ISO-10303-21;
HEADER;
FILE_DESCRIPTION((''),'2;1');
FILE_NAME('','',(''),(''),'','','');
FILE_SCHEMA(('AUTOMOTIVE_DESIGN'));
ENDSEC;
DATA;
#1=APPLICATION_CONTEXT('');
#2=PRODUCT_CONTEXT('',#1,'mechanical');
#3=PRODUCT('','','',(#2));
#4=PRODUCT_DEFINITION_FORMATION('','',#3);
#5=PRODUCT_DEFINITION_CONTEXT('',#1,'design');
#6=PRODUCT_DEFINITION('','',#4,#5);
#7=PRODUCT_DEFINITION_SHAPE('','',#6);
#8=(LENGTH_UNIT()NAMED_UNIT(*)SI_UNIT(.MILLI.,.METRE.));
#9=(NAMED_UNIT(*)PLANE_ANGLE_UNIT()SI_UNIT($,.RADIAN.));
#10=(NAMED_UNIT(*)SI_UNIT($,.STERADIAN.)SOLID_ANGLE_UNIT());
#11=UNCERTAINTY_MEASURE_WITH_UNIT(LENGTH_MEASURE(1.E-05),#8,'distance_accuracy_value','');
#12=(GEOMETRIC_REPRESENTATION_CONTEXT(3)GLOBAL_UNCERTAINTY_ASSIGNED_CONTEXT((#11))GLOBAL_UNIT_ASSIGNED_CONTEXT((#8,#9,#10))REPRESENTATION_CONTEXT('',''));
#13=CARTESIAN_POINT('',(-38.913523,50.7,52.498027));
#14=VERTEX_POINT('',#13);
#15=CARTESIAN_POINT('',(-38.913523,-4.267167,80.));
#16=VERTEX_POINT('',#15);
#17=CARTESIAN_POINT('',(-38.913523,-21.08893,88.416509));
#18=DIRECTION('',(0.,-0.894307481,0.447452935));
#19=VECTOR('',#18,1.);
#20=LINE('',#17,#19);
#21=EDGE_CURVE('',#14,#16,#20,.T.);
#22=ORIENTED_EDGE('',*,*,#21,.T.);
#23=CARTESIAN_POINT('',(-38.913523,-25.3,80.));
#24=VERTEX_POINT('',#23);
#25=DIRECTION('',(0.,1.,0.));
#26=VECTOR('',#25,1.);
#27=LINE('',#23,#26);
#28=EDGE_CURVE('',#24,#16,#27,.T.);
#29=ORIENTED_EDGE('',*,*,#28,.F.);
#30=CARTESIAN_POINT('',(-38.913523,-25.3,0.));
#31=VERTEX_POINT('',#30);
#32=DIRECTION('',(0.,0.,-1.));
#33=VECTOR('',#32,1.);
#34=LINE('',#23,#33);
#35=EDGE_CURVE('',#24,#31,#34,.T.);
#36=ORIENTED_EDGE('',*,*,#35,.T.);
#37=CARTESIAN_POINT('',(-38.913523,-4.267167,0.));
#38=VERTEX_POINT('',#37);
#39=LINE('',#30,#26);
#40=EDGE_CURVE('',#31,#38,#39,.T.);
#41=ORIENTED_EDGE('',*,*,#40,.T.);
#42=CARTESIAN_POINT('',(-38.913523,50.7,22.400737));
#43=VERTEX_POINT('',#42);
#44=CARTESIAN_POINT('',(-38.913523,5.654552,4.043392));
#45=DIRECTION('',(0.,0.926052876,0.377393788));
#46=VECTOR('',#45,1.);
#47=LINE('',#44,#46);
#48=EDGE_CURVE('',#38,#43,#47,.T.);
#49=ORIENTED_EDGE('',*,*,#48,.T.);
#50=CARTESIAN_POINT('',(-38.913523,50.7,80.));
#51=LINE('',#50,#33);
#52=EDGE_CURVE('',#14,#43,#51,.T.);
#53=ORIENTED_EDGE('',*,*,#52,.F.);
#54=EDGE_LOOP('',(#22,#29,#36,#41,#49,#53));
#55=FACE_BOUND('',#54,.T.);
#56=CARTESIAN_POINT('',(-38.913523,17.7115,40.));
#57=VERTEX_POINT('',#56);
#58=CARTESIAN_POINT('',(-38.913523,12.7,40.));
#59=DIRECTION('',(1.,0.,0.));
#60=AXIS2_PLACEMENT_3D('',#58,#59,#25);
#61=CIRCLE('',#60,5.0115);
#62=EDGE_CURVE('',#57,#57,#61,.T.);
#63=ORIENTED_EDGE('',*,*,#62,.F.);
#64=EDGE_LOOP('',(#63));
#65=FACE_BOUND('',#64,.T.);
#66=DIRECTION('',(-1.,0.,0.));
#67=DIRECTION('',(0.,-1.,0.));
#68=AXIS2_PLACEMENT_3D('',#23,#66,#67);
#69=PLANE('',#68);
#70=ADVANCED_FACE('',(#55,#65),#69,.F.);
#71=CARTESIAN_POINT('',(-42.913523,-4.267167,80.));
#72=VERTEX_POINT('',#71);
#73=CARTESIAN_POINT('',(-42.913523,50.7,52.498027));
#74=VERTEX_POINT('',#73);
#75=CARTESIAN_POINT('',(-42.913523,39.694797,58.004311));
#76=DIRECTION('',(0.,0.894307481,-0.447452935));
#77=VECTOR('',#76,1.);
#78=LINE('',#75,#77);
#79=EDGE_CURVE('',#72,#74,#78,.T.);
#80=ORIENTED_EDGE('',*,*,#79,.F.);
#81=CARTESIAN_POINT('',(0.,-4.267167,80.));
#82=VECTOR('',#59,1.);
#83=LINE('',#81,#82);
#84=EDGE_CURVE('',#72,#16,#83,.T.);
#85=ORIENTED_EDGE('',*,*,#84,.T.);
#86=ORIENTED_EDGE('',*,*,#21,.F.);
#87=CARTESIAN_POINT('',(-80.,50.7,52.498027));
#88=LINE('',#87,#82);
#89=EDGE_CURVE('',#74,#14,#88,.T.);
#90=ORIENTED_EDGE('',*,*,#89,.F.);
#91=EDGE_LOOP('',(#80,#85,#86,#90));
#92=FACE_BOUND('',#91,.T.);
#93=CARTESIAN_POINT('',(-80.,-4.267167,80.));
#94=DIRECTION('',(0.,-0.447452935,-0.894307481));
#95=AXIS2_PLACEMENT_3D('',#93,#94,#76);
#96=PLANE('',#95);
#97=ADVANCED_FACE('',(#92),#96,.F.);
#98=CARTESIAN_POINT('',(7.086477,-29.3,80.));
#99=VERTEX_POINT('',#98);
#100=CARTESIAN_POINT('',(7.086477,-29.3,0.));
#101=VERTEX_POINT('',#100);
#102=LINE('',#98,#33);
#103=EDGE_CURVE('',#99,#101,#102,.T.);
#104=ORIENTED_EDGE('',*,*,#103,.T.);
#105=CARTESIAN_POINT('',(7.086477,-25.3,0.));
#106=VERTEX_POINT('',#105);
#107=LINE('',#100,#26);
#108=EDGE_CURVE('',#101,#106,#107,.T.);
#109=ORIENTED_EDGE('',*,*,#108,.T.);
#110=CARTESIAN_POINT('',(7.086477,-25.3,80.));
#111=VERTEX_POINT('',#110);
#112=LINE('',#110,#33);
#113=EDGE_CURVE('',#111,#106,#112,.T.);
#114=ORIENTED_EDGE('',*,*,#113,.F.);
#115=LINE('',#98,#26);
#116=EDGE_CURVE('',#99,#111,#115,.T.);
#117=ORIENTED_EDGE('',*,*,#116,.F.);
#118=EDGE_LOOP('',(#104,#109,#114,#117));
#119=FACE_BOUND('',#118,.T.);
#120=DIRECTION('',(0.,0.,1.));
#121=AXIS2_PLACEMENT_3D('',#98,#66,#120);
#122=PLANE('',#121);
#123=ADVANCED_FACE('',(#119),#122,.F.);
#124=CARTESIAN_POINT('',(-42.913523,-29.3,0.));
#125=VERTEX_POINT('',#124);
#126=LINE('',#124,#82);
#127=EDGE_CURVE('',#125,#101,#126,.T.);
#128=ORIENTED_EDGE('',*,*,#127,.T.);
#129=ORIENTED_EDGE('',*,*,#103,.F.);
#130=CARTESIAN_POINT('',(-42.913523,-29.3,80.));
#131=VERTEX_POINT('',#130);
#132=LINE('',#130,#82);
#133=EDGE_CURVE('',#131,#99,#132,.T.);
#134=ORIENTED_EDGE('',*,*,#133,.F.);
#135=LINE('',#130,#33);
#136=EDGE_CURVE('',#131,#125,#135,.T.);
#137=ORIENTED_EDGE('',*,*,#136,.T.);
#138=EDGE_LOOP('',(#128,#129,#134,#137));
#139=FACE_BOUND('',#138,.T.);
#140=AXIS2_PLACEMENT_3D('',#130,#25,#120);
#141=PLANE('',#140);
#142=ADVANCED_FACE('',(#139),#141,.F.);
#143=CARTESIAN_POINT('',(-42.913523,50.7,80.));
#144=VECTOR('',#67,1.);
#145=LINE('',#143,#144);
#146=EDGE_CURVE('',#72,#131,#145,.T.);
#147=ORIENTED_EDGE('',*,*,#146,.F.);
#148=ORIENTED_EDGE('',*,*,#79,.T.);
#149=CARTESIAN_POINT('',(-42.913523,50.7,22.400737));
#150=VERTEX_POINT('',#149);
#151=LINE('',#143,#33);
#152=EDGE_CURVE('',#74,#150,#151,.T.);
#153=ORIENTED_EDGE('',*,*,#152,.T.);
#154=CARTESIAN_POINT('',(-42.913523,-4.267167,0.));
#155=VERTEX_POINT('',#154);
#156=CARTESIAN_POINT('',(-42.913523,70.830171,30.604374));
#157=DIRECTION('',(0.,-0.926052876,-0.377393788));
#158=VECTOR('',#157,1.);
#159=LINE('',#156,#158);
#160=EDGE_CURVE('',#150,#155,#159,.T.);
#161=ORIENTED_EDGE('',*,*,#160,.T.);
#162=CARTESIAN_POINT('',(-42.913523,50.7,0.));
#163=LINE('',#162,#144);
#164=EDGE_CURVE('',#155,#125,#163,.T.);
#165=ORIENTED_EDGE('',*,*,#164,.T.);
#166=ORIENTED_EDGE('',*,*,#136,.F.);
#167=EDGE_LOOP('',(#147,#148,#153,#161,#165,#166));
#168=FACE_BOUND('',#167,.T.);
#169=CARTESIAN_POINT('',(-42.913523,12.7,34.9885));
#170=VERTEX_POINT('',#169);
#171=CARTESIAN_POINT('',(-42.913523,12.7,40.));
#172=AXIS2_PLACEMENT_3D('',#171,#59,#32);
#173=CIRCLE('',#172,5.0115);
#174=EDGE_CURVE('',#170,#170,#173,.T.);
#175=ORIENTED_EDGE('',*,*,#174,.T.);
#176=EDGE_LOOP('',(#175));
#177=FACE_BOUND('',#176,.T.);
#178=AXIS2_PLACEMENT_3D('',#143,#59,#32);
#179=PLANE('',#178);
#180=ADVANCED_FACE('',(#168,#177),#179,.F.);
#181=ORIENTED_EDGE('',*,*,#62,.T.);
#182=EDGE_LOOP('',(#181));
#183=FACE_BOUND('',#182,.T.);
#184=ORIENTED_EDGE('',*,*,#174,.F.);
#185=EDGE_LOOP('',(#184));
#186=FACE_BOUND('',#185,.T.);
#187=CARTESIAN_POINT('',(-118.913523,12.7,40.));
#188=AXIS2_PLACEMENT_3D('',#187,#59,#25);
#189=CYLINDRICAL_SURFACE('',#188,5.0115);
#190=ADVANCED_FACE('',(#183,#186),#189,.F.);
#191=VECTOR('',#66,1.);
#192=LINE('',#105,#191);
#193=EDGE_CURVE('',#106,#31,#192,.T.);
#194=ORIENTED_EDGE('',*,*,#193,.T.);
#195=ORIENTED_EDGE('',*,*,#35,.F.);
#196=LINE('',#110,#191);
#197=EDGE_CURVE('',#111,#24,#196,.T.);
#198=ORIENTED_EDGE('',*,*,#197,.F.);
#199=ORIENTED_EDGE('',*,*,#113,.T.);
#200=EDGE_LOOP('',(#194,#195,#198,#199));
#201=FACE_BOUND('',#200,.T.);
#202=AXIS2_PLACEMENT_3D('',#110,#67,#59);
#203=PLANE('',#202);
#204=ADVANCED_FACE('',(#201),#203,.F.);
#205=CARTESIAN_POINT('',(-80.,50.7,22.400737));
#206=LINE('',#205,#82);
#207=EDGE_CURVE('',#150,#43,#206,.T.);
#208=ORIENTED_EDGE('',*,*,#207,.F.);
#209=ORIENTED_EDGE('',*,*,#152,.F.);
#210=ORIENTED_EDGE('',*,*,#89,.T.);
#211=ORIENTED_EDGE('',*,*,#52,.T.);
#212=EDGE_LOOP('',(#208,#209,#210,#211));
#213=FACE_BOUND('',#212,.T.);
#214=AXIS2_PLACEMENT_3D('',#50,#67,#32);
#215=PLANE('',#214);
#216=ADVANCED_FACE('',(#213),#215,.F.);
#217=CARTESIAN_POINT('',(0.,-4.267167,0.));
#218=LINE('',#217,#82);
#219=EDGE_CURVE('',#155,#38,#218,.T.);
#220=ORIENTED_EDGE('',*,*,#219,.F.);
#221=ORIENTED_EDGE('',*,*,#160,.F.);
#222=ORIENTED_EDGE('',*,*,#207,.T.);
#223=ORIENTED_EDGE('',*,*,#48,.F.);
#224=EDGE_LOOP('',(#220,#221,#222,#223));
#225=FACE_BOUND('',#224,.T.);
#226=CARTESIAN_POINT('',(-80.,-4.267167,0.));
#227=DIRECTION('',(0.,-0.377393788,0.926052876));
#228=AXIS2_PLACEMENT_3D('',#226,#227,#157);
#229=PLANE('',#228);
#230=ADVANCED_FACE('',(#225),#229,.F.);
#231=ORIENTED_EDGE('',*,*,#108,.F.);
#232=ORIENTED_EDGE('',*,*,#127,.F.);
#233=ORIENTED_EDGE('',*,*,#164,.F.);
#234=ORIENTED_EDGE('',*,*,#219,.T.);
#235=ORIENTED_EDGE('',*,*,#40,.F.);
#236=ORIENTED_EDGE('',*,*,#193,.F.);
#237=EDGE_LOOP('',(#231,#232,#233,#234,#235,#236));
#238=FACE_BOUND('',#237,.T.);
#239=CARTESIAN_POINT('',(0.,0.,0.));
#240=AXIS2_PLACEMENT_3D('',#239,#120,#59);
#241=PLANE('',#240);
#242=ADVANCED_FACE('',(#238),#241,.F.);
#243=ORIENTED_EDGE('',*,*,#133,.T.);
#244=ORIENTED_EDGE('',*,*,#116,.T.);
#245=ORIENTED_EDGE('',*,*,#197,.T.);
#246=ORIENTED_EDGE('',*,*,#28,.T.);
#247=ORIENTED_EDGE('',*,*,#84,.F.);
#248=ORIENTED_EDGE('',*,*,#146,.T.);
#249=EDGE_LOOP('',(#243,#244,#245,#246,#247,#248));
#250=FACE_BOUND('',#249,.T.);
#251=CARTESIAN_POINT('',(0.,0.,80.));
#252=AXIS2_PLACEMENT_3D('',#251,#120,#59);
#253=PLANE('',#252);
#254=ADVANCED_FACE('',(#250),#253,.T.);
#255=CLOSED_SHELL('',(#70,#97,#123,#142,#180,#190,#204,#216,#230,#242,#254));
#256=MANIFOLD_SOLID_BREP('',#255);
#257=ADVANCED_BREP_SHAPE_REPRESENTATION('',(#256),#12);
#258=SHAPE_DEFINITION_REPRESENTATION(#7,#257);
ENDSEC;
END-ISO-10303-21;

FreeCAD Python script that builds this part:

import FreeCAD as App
import Part
import Sketcher

doc = App.newDocument("Part")
body = doc.addObject("PartDesign::Body", "Body")

# Sketch on XY plane
sketch1 = body.newObject("Sketcher::SketchObject", "Sketch")
sketch1.AttachmentSupport = (doc.getObject("XY_Plane"), [""])
sketch1.MapMode = "FlatFace"
sketch1.addGeometry([
    Part.LineSegment(App.Vector(-42.9, 50.7, 0), App.Vector(-42.9, -29.3, 0)),  # 0
    Part.LineSegment(App.Vector(-42.9, -29.3, 0), App.Vector(7.1, -29.3, 0)),  # 1
    Part.LineSegment(App.Vector(7.1, -29.3, 0), App.Vector(7.1, -25.3, 0)),  # 2
    Part.LineSegment(App.Vector(7.1, -25.3, 0), App.Vector(-38.9, -25.3, 0)),  # 3
    Part.LineSegment(App.Vector(-38.9, -25.3, 0), App.Vector(-38.9, 50.7, 0)),  # 4
    Part.LineSegment(App.Vector(-38.9, 50.7, 0), App.Vector(-42.9, 50.7, 0)),  # 5
], False)
sketch1.addConstraint([
    Sketcher.Constraint("Coincident", 0, 2, 1, 1),
    Sketcher.Constraint("Coincident", 1, 2, 2, 1),
    Sketcher.Constraint("Coincident", 2, 2, 3, 1),
    Sketcher.Constraint("Coincident", 3, 2, 4, 1),
    Sketcher.Constraint("Coincident", 4, 2, 5, 1),
    Sketcher.Constraint("Coincident", 5, 2, 0, 1),
    Sketcher.Constraint("Vertical", 0),
    Sketcher.Constraint("Horizontal", 1),
    Sketcher.Constraint("Vertical", 2),
    Sketcher.Constraint("Horizontal", 3),
    Sketcher.Constraint("Vertical", 4),
    Sketcher.Constraint("Horizontal", 5),
    Sketcher.Constraint("Equal", 5, 2),
    Sketcher.Constraint("DistanceX", 1, 1, 1, 2, 50.0),
    Sketcher.Constraint("DistanceX", 3, 2, 3, 1, 46.0),
    Sketcher.Constraint("DistanceY", 0, 2, 0, 1, 80.0),
    Sketcher.Constraint("DistanceY", 0, 2, -1, 1, 29.3),
    Sketcher.Constraint("DistanceX", 0, 2, -1, 1, 42.913523),
])
pad1 = body.newObject("PartDesign::Pad", "Pad")
pad1.Profile = sketch1
pad1.Length = 80

# Sketch on YZ plane
sketch2 = body.newObject("Sketcher::SketchObject", "Sketch001")
sketch2.AttachmentSupport = (doc.getObject("YZ_Plane"), [""])
sketch2.MapMode = "FlatFace"
sketch2.AttachmentOffset = App.Placement(App.Vector(0, 0, -38.913523), App.Rotation())
sketch2.addGeometry(Part.Circle(App.Vector(13, 40, 0), App.Vector(0, 0, 1), 5), False)
sketch2.addConstraint([
    Sketcher.Constraint("Diameter", 0, 10.023),
    Sketcher.Constraint("DistanceY", -1, 1, 0, 3, 40.0),
    Sketcher.Constraint("DistanceX", -1, 1, 0, 3, 12.7),
])
pocket1 = body.newObject("PartDesign::Pocket", "Pocket")
pocket1.Profile = sketch2
pocket1.Length = 80

# Sketch on YZ plane
sketch3 = body.newObject("Sketcher::SketchObject", "Sketch002")
sketch3.AttachmentSupport = (doc.getObject("YZ_Plane"), [""])
sketch3.MapMode = "FlatFace"
sketch3.addGeometry([
    Part.LineSegment(App.Vector(-4, 80, 0), App.Vector(51, 52, 0)),  # 0
    Part.LineSegment(App.Vector(51, 52, 0), App.Vector(51, 80, 0)),  # 1
    Part.LineSegment(App.Vector(51, 80, 0), App.Vector(-4, 80, 0)),  # 2
    Part.LineSegment(App.Vector(51, 22, 0), App.Vector(-4, 0, 0)),  # 3
    Part.LineSegment(App.Vector(-4, 0, 0), App.Vector(51, 0, 0)),  # 4
    Part.LineSegment(App.Vector(51, 0, 0), App.Vector(51, 22, 0)),  # 5
], False)
sketch3.addConstraint([
    Sketcher.Constraint("Coincident", 0, 2, 1, 1),
    Sketcher.Constraint("Coincident", 1, 2, 2, 1),
    Sketcher.Constraint("Coincident", 2, 2, 0, 1),
    Sketcher.Constraint("Coincident", 3, 2, 4, 1),
    Sketcher.Constraint("Coincident", 4, 2, 5, 1),
    Sketcher.Constraint("Coincident", 5, 2, 3, 1),
    Sketcher.Constraint("Vertical", 1),
    Sketcher.Constraint("Horizontal", 2),
    Sketcher.Constraint("Horizontal", 4),
    Sketcher.Constraint("Vertical", 5),
    Sketcher.Constraint("PointOnObject", 3, 2, -1),
    Sketcher.Constraint("Vertical", 2, 2, 3, 2),
    Sketcher.Constraint("Vertical", 1, 2, 4, 2),
    Sketcher.Constraint("DistanceY", -1, 1, 1, 2, 80.0),
    Sketcher.Constraint("DistanceX", -1, 1, 0, 2, 50.7),
    Sketcher.Constraint("DistanceX", 2, 2, 2, 1, 54.967167),
    Sketcher.Constraint("DistanceY", 1, 1, 1, 2, 27.501973),
    Sketcher.Constraint("DistanceY", 5, 1, 5, 2, 22.400737),
])
pocket2 = body.newObject("PartDesign::Pocket", "Pocket001")
pocket2.Profile = sketch3
pocket2.Length = 80

doc.recompute()
